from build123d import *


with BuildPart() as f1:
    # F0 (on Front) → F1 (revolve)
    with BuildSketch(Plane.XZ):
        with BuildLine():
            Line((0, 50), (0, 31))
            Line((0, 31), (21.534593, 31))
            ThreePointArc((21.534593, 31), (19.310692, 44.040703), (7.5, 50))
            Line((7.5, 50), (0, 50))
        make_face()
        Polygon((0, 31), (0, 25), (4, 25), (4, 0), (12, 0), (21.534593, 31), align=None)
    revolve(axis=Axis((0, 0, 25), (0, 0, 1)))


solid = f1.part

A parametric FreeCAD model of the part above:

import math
import FreeCAD as App
import Part
import Sketcher

doc = App.newDocument("Part")
body = doc.addObject("PartDesign::Body", "Body")

# Sketch on XZ plane
sketch1 = body.newObject("Sketcher::SketchObject", "Sketch")
sketch1.AttachmentSupport = (doc.getObject("XZ_Plane"), [""])
sketch1.MapMode = "FlatFace"
sketch1.addGeometry([
    Part.LineSegment(App.Vector(0, 50, 0), App.Vector(0, 25, 0)),  # 0
    Part.LineSegment(App.Vector(0, 25, 0), App.Vector(4, 25, 0)),  # 1
    Part.LineSegment(App.Vector(4, 25, 0), App.Vector(4, 0, 0)),  # 2
    Part.LineSegment(App.Vector(4, 0, 0), App.Vector(12, 0, 0)),  # 3
    Part.LineSegment(App.Vector(12, 0, 0), App.Vector(21.5, 31, 0)),  # 4
    Part.ArcOfCircle(Part.Circle(App.Vector(7.5, 35.3, 0), App.Vector(0, 0, 1), 14.7), math.radians(-17), math.radians(90)),  # 5
    Part.LineSegment(App.Vector(7.5, 50, 0), App.Vector(0, 50, 0)),  # 6
], False)
sketch1.addConstraint([
    Sketcher.Constraint("Coincident", 0, 2, 1, 1),
    Sketcher.Constraint("Coincident", 1, 2, 2, 1),
    Sketcher.Constraint("Coincident", 2, 2, 3, 1),
    Sketcher.Constraint("Coincident", 3, 2, 4, 1),
    Sketcher.Constraint("Tangent", 4, 2, 5, 1),
    Sketcher.Constraint("Tangent", 5, 2, 6, 1),
    Sketcher.Constraint("Coincident", 6, 2, 0, 1),
    Sketcher.Constraint("Vertical", 0),
    Sketcher.Constraint("Horizontal", 1),
    Sketcher.Constraint("Vertical", 2),
    Sketcher.Constraint("Horizontal", 3),
    Sketcher.Constraint("Horizontal", 6),
    Sketcher.Constraint("PointOnObject", 0, 2, -2),
    Sketcher.Constraint("PointOnObject", 2, 2, -1),
    Sketcher.Constraint("Equal", 0, 2),
    Sketcher.Constraint("DistanceX", 1, 1, 1, 2, 4.0),
    Sketcher.Constraint("DistanceX", 3, 1, 3, 2, 8.0),
    Sketcher.Constraint("DistanceY", 0, 2, 0, 1, 25.0),
    Sketcher.Constraint("DistanceX", 6, 2, 6, 1, 7.5),
    Sketcher.Constraint("DistanceY", -1, 1, 4, 2, 31.0),
])
revolution = body.newObject("PartDesign::Revolution", "Revolution")
revolution.Profile = sketch1
revolution.ReferenceAxis = (sketch1, ["V_Axis"])
revolution.Angle = 360

doc.recompute()
